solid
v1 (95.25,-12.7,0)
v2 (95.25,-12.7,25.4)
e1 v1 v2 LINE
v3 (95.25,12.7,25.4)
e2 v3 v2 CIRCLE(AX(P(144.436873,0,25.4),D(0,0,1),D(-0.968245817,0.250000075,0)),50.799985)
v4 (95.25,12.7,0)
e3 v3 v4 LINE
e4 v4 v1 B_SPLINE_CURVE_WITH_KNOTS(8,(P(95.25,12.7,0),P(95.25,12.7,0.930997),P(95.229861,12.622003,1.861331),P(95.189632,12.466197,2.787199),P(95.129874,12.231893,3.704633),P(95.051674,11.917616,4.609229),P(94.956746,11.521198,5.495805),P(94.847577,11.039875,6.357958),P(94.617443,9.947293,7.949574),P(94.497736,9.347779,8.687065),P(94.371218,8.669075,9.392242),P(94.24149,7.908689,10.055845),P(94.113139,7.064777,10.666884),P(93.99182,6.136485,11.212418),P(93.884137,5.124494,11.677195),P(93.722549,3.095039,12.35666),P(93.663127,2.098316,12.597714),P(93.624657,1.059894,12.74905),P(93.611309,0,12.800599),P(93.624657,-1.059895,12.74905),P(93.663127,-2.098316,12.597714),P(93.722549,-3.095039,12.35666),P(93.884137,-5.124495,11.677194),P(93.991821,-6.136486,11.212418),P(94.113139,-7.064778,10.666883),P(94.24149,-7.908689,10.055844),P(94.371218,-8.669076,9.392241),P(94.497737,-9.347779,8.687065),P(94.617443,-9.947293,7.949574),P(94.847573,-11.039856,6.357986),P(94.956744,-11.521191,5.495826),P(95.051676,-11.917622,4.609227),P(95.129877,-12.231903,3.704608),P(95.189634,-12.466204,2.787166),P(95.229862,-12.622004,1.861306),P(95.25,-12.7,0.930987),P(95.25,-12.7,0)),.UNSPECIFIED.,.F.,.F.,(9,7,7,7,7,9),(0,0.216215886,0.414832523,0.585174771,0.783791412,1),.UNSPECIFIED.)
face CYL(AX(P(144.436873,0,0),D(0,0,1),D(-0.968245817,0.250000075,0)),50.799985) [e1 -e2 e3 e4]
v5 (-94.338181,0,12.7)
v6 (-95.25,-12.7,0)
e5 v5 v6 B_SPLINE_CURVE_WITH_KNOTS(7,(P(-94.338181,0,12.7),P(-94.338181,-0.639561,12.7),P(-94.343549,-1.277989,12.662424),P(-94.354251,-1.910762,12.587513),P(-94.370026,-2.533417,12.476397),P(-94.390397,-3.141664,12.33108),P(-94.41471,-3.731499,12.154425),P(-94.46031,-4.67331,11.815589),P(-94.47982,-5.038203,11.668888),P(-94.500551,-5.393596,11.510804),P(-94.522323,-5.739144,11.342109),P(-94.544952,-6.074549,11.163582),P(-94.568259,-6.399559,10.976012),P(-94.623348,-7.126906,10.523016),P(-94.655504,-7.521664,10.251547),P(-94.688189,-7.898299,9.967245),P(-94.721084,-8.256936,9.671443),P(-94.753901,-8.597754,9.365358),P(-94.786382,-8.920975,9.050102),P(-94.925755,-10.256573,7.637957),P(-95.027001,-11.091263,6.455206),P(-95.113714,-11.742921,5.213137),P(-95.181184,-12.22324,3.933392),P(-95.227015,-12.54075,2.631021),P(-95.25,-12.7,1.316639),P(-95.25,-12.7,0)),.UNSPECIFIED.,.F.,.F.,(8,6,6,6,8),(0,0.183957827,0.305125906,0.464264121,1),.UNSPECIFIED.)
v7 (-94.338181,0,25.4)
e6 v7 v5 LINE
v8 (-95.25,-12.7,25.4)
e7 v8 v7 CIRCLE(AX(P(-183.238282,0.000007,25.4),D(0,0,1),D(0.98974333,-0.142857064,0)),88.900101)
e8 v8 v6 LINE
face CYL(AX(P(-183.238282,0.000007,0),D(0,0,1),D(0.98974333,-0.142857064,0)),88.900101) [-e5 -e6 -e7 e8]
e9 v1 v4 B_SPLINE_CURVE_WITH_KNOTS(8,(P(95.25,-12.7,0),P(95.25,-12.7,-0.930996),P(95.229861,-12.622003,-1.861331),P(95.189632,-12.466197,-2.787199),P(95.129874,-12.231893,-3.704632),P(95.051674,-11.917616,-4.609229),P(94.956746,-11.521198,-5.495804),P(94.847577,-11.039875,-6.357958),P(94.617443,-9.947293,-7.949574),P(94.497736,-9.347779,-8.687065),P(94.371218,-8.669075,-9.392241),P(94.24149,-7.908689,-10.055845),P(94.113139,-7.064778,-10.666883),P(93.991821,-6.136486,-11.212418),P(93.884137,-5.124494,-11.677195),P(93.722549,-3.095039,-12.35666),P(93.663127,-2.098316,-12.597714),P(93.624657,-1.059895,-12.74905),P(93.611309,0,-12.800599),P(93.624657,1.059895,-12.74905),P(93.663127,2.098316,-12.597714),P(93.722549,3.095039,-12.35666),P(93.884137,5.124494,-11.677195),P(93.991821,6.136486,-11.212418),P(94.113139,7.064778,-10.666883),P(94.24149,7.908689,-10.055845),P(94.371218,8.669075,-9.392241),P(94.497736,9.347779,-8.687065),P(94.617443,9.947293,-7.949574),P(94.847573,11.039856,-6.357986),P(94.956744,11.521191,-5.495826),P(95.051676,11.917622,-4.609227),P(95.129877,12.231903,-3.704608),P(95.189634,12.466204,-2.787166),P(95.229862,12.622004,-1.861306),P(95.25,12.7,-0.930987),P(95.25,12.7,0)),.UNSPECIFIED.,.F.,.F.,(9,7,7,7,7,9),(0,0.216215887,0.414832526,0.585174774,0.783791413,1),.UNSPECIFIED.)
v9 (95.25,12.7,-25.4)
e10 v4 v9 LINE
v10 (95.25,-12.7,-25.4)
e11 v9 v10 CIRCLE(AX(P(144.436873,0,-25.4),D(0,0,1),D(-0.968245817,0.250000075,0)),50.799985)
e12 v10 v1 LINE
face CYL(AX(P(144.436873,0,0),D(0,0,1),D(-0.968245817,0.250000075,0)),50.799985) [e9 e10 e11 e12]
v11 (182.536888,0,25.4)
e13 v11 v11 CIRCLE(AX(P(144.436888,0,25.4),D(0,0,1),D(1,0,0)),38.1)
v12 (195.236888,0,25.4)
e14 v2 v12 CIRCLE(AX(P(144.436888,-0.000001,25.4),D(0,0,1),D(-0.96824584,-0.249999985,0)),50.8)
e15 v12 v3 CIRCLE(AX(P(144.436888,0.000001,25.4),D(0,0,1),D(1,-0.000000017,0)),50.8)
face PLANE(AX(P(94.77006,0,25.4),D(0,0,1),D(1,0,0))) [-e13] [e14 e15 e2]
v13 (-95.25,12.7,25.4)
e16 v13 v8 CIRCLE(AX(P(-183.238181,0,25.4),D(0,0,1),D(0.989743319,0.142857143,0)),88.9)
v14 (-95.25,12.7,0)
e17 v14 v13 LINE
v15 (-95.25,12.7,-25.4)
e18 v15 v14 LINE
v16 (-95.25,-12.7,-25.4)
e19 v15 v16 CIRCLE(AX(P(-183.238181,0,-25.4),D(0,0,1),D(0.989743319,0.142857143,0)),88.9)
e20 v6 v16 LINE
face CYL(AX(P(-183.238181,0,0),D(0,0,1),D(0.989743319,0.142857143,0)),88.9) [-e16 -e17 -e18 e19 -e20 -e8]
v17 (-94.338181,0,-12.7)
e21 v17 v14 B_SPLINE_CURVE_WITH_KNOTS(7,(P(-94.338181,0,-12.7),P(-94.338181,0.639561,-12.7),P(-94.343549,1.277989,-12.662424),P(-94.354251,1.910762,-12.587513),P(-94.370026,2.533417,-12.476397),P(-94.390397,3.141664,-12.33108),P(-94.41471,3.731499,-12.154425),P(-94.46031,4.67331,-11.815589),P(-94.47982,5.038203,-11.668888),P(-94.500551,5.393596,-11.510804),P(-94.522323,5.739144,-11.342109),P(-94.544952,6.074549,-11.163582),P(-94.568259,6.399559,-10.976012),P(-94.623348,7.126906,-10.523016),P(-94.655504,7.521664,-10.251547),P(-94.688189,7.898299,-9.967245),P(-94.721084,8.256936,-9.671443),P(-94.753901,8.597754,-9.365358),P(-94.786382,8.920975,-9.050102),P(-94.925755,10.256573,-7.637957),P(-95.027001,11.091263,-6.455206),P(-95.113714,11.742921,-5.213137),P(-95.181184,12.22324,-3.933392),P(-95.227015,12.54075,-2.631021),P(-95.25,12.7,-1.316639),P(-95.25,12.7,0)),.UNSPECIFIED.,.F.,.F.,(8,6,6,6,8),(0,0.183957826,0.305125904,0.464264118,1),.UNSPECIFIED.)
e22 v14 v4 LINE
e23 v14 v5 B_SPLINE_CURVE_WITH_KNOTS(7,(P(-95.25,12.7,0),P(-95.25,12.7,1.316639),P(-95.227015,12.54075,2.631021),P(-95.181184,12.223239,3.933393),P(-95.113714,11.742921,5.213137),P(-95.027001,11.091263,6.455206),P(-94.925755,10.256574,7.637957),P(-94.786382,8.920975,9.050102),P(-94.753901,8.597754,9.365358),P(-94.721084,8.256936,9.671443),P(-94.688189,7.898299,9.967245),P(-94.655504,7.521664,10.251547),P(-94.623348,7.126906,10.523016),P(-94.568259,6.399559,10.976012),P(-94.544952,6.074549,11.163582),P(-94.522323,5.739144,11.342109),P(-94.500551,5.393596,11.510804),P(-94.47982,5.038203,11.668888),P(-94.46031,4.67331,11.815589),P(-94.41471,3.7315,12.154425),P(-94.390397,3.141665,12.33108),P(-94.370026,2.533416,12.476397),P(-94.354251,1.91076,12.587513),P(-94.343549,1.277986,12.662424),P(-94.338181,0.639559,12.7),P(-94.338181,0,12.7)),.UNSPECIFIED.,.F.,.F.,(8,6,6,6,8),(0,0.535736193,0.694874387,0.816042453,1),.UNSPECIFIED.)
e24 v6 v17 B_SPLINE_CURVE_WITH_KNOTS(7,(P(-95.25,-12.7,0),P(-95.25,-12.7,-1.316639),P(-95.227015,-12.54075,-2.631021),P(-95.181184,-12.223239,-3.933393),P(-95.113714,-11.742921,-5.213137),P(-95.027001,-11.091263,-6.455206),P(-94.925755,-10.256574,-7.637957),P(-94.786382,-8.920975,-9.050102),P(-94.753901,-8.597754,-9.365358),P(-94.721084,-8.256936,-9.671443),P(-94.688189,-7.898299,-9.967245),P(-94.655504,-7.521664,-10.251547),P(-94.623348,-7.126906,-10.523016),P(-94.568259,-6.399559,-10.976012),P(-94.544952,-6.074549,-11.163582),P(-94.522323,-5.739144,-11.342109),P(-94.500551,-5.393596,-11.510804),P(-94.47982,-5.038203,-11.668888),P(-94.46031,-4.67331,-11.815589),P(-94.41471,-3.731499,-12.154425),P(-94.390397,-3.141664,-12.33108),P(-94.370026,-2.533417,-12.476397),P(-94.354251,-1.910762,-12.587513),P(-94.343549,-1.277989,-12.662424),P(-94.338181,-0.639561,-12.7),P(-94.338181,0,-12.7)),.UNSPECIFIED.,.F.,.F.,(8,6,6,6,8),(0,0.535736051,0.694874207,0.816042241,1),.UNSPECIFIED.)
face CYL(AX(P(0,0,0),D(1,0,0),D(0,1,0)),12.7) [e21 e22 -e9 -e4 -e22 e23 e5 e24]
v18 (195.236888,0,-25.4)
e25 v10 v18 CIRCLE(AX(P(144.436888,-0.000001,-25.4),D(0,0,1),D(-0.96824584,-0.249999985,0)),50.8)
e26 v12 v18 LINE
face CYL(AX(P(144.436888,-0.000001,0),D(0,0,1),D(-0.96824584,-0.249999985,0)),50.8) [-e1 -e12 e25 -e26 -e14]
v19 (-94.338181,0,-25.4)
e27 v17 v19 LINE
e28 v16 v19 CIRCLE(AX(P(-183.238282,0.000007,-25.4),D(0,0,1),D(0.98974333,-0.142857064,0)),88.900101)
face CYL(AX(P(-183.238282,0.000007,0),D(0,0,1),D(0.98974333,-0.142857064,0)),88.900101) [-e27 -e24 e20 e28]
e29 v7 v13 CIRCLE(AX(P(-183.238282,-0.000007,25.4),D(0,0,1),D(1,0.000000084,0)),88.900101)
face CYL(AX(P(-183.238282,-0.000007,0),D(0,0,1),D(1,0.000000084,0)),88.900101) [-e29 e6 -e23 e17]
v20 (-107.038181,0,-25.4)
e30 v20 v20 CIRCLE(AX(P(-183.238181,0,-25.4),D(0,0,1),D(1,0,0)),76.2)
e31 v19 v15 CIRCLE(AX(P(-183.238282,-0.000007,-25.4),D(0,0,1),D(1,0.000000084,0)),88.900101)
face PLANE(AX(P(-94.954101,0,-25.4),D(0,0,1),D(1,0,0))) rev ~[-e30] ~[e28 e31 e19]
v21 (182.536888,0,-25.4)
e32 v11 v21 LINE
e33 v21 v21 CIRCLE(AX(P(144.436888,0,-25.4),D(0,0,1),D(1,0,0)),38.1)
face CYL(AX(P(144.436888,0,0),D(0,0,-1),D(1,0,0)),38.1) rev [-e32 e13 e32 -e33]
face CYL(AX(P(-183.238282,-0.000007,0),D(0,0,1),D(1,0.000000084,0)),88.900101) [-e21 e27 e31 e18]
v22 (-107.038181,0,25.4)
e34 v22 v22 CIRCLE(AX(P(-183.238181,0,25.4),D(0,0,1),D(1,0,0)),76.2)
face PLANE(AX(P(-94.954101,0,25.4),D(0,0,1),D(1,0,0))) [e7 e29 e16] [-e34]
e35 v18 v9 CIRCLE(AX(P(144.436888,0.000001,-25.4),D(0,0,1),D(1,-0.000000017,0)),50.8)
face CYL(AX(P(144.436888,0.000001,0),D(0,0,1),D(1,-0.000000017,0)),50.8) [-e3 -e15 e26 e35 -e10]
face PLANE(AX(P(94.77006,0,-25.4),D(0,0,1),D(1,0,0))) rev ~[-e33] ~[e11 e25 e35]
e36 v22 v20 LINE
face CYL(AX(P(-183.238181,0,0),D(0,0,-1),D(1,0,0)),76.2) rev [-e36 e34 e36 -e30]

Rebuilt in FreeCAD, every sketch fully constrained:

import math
import FreeCAD as App
import Part
import Sketcher
from FreeCAD import Vector
Q = App.Units.Quantity

doc = App.newDocument("Part")
body = doc.addObject("PartDesign::Body", "Body")

# Sketch on YZ plane
sketch1 = body.newObject("Sketcher::SketchObject", "Sketch")
sketch1.AttachmentSupport = (doc.getObject("YZ_Plane"), [""])
sketch1.MapMode = "FlatFace"
sketch1.addGeometry(Part.Circle(Vector(0, 0, 0), Vector(0, 0, 1), 13), False)
sketch1.addConstraint([
    Sketcher.Constraint("Coincident", 0, 3, -1, 1),
    Sketcher.Constraint("Diameter", 0, Q("1 in")),
])
pad1 = body.newObject("PartDesign::Pad", "Pad")
pad1.Profile = sketch1
pad1.Length = Q("7.5 in")
pad1.Midplane = True

# Sketch on XY plane
sketch2 = body.newObject("Sketcher::SketchObject", "Sketch001")
sketch2.AttachmentSupport = (doc.getObject("XY_Plane"), [""])
sketch2.MapMode = "FlatFace"
sketch2.addGeometry([
    Part.ArcOfCircle(Part.Circle(Vector(-183.238282, -0.000007, 0), Vector(0, 0, 1), 88.900101), math.radians(0.000005), math.radians(8.213206)),
    Part.ArcOfCircle(Part.Circle(Vector(-183.238181, 0, 0), Vector(0, 0, 1), 88.9), math.radians(8.213211), math.radians(351.786789)),
    Part.ArcOfCircle(Part.Circle(Vector(-183.238282, 0.000007, 0), Vector(0, 0, 1), 88.900101), math.radians(-8.213206), math.radians(-0.000005)),
    Part.Circle(Vector(-183.238181, 0, 0), Vector(0, 0, 1), 76.2),
], False)
sketch2.addConstraint([
    Sketcher.Constraint("Coincident", 0, 2, 1, 1),
    Sketcher.Constraint("Coincident", 1, 2, 2, 1),
    Sketcher.Constraint("Coincident", 2, 2, 0, 1),
    Sketcher.Constraint("Coincident", 3, 3, 1, 3),
    Sketcher.Constraint("PointOnObject", 1, 3, -1),
    Sketcher.Constraint("PointOnObject", 2, 2, -1),
    Sketcher.Constraint("Diameter", 3, Q("6 in")),
    Sketcher.Constraint("Radius", 1, Q("3.5 in")),
    Sketcher.Constraint("DistanceY", 1, 2, 0, 2, Q("1 in")),
    Sketcher.Constraint("DistanceY", -1, 1, 0, 2, Q("0.5 in")),
    Sketcher.Constraint("DistanceX", 3, 3, 2, 2, Q("3.5 in")),
    Sketcher.Constraint("DistanceX", 0, 2, -1, 1, Q("3.75 in")),
    Sketcher.Constraint("Radius", 0, Q("88.900101 mm")),
    Sketcher.Constraint("Radius", 2, Q("88.900101 mm")),
])
pad2 = body.newObject("PartDesign::Pad", "Pad001")
pad2.Profile = sketch2
pad2.Length = Q("2 in")
pad2.Midplane = True

# Sketch on XY plane
sketch3 = body.newObject("Sketcher::SketchObject", "Sketch002")
sketch3.AttachmentSupport = (doc.getObject("XY_Plane"), [""])
sketch3.MapMode = "FlatFace"
sketch3.addGeometry([
    Part.ArcOfCircle(Part.Circle(Vector(144, 0, 0), Vector(0, 0, 1), 51), math.radians(166), math.radians(194)),
    Part.ArcOfCircle(Part.Circle(Vector(144, 0, 0), Vector(0, 0, 1), 51), math.radians(-166), math.radians(0)),
    Part.ArcOfCircle(Part.Circle(Vector(144, 0, 0), Vector(0, 0, 1), 51), math.radians(0), math.radians(166)),
    Part.Circle(Vector(144, 0, 0), Vector(0, 0, 1), 38),
], False)
sketch3.addConstraint([
    Sketcher.Constraint("Tangent", 0, 2, 1, 1),
    Sketcher.Constraint("Tangent", 1, 2, 2, 1),
    Sketcher.Constraint("Tangent", 2, 2, 0, 1),
    Sketcher.Constraint("Coincident", 3, 3, 1, 3),
    Sketcher.Constraint("Symmetric", 0, 2, 2, 2, -1),
    Sketcher.Constraint("PointOnObject", 1, 2, -1),
    Sketcher.Constraint("Diameter", 3, Q("3 in")),
    Sketcher.Constraint("Radius", 1, Q("2 in")),
    Sketcher.Constraint("DistanceY", 0, 2, 2, 2, Q("1 in")),
    Sketcher.Constraint("DistanceX", -1, 1, 0, 2, Q("3.75 in")),
])
pad3 = body.newObject("PartDesign::Pad", "Pad002")
pad3.Profile = sketch3
pad3.Length = Q("2 in")
pad3.Midplane = True

doc.recompute()
